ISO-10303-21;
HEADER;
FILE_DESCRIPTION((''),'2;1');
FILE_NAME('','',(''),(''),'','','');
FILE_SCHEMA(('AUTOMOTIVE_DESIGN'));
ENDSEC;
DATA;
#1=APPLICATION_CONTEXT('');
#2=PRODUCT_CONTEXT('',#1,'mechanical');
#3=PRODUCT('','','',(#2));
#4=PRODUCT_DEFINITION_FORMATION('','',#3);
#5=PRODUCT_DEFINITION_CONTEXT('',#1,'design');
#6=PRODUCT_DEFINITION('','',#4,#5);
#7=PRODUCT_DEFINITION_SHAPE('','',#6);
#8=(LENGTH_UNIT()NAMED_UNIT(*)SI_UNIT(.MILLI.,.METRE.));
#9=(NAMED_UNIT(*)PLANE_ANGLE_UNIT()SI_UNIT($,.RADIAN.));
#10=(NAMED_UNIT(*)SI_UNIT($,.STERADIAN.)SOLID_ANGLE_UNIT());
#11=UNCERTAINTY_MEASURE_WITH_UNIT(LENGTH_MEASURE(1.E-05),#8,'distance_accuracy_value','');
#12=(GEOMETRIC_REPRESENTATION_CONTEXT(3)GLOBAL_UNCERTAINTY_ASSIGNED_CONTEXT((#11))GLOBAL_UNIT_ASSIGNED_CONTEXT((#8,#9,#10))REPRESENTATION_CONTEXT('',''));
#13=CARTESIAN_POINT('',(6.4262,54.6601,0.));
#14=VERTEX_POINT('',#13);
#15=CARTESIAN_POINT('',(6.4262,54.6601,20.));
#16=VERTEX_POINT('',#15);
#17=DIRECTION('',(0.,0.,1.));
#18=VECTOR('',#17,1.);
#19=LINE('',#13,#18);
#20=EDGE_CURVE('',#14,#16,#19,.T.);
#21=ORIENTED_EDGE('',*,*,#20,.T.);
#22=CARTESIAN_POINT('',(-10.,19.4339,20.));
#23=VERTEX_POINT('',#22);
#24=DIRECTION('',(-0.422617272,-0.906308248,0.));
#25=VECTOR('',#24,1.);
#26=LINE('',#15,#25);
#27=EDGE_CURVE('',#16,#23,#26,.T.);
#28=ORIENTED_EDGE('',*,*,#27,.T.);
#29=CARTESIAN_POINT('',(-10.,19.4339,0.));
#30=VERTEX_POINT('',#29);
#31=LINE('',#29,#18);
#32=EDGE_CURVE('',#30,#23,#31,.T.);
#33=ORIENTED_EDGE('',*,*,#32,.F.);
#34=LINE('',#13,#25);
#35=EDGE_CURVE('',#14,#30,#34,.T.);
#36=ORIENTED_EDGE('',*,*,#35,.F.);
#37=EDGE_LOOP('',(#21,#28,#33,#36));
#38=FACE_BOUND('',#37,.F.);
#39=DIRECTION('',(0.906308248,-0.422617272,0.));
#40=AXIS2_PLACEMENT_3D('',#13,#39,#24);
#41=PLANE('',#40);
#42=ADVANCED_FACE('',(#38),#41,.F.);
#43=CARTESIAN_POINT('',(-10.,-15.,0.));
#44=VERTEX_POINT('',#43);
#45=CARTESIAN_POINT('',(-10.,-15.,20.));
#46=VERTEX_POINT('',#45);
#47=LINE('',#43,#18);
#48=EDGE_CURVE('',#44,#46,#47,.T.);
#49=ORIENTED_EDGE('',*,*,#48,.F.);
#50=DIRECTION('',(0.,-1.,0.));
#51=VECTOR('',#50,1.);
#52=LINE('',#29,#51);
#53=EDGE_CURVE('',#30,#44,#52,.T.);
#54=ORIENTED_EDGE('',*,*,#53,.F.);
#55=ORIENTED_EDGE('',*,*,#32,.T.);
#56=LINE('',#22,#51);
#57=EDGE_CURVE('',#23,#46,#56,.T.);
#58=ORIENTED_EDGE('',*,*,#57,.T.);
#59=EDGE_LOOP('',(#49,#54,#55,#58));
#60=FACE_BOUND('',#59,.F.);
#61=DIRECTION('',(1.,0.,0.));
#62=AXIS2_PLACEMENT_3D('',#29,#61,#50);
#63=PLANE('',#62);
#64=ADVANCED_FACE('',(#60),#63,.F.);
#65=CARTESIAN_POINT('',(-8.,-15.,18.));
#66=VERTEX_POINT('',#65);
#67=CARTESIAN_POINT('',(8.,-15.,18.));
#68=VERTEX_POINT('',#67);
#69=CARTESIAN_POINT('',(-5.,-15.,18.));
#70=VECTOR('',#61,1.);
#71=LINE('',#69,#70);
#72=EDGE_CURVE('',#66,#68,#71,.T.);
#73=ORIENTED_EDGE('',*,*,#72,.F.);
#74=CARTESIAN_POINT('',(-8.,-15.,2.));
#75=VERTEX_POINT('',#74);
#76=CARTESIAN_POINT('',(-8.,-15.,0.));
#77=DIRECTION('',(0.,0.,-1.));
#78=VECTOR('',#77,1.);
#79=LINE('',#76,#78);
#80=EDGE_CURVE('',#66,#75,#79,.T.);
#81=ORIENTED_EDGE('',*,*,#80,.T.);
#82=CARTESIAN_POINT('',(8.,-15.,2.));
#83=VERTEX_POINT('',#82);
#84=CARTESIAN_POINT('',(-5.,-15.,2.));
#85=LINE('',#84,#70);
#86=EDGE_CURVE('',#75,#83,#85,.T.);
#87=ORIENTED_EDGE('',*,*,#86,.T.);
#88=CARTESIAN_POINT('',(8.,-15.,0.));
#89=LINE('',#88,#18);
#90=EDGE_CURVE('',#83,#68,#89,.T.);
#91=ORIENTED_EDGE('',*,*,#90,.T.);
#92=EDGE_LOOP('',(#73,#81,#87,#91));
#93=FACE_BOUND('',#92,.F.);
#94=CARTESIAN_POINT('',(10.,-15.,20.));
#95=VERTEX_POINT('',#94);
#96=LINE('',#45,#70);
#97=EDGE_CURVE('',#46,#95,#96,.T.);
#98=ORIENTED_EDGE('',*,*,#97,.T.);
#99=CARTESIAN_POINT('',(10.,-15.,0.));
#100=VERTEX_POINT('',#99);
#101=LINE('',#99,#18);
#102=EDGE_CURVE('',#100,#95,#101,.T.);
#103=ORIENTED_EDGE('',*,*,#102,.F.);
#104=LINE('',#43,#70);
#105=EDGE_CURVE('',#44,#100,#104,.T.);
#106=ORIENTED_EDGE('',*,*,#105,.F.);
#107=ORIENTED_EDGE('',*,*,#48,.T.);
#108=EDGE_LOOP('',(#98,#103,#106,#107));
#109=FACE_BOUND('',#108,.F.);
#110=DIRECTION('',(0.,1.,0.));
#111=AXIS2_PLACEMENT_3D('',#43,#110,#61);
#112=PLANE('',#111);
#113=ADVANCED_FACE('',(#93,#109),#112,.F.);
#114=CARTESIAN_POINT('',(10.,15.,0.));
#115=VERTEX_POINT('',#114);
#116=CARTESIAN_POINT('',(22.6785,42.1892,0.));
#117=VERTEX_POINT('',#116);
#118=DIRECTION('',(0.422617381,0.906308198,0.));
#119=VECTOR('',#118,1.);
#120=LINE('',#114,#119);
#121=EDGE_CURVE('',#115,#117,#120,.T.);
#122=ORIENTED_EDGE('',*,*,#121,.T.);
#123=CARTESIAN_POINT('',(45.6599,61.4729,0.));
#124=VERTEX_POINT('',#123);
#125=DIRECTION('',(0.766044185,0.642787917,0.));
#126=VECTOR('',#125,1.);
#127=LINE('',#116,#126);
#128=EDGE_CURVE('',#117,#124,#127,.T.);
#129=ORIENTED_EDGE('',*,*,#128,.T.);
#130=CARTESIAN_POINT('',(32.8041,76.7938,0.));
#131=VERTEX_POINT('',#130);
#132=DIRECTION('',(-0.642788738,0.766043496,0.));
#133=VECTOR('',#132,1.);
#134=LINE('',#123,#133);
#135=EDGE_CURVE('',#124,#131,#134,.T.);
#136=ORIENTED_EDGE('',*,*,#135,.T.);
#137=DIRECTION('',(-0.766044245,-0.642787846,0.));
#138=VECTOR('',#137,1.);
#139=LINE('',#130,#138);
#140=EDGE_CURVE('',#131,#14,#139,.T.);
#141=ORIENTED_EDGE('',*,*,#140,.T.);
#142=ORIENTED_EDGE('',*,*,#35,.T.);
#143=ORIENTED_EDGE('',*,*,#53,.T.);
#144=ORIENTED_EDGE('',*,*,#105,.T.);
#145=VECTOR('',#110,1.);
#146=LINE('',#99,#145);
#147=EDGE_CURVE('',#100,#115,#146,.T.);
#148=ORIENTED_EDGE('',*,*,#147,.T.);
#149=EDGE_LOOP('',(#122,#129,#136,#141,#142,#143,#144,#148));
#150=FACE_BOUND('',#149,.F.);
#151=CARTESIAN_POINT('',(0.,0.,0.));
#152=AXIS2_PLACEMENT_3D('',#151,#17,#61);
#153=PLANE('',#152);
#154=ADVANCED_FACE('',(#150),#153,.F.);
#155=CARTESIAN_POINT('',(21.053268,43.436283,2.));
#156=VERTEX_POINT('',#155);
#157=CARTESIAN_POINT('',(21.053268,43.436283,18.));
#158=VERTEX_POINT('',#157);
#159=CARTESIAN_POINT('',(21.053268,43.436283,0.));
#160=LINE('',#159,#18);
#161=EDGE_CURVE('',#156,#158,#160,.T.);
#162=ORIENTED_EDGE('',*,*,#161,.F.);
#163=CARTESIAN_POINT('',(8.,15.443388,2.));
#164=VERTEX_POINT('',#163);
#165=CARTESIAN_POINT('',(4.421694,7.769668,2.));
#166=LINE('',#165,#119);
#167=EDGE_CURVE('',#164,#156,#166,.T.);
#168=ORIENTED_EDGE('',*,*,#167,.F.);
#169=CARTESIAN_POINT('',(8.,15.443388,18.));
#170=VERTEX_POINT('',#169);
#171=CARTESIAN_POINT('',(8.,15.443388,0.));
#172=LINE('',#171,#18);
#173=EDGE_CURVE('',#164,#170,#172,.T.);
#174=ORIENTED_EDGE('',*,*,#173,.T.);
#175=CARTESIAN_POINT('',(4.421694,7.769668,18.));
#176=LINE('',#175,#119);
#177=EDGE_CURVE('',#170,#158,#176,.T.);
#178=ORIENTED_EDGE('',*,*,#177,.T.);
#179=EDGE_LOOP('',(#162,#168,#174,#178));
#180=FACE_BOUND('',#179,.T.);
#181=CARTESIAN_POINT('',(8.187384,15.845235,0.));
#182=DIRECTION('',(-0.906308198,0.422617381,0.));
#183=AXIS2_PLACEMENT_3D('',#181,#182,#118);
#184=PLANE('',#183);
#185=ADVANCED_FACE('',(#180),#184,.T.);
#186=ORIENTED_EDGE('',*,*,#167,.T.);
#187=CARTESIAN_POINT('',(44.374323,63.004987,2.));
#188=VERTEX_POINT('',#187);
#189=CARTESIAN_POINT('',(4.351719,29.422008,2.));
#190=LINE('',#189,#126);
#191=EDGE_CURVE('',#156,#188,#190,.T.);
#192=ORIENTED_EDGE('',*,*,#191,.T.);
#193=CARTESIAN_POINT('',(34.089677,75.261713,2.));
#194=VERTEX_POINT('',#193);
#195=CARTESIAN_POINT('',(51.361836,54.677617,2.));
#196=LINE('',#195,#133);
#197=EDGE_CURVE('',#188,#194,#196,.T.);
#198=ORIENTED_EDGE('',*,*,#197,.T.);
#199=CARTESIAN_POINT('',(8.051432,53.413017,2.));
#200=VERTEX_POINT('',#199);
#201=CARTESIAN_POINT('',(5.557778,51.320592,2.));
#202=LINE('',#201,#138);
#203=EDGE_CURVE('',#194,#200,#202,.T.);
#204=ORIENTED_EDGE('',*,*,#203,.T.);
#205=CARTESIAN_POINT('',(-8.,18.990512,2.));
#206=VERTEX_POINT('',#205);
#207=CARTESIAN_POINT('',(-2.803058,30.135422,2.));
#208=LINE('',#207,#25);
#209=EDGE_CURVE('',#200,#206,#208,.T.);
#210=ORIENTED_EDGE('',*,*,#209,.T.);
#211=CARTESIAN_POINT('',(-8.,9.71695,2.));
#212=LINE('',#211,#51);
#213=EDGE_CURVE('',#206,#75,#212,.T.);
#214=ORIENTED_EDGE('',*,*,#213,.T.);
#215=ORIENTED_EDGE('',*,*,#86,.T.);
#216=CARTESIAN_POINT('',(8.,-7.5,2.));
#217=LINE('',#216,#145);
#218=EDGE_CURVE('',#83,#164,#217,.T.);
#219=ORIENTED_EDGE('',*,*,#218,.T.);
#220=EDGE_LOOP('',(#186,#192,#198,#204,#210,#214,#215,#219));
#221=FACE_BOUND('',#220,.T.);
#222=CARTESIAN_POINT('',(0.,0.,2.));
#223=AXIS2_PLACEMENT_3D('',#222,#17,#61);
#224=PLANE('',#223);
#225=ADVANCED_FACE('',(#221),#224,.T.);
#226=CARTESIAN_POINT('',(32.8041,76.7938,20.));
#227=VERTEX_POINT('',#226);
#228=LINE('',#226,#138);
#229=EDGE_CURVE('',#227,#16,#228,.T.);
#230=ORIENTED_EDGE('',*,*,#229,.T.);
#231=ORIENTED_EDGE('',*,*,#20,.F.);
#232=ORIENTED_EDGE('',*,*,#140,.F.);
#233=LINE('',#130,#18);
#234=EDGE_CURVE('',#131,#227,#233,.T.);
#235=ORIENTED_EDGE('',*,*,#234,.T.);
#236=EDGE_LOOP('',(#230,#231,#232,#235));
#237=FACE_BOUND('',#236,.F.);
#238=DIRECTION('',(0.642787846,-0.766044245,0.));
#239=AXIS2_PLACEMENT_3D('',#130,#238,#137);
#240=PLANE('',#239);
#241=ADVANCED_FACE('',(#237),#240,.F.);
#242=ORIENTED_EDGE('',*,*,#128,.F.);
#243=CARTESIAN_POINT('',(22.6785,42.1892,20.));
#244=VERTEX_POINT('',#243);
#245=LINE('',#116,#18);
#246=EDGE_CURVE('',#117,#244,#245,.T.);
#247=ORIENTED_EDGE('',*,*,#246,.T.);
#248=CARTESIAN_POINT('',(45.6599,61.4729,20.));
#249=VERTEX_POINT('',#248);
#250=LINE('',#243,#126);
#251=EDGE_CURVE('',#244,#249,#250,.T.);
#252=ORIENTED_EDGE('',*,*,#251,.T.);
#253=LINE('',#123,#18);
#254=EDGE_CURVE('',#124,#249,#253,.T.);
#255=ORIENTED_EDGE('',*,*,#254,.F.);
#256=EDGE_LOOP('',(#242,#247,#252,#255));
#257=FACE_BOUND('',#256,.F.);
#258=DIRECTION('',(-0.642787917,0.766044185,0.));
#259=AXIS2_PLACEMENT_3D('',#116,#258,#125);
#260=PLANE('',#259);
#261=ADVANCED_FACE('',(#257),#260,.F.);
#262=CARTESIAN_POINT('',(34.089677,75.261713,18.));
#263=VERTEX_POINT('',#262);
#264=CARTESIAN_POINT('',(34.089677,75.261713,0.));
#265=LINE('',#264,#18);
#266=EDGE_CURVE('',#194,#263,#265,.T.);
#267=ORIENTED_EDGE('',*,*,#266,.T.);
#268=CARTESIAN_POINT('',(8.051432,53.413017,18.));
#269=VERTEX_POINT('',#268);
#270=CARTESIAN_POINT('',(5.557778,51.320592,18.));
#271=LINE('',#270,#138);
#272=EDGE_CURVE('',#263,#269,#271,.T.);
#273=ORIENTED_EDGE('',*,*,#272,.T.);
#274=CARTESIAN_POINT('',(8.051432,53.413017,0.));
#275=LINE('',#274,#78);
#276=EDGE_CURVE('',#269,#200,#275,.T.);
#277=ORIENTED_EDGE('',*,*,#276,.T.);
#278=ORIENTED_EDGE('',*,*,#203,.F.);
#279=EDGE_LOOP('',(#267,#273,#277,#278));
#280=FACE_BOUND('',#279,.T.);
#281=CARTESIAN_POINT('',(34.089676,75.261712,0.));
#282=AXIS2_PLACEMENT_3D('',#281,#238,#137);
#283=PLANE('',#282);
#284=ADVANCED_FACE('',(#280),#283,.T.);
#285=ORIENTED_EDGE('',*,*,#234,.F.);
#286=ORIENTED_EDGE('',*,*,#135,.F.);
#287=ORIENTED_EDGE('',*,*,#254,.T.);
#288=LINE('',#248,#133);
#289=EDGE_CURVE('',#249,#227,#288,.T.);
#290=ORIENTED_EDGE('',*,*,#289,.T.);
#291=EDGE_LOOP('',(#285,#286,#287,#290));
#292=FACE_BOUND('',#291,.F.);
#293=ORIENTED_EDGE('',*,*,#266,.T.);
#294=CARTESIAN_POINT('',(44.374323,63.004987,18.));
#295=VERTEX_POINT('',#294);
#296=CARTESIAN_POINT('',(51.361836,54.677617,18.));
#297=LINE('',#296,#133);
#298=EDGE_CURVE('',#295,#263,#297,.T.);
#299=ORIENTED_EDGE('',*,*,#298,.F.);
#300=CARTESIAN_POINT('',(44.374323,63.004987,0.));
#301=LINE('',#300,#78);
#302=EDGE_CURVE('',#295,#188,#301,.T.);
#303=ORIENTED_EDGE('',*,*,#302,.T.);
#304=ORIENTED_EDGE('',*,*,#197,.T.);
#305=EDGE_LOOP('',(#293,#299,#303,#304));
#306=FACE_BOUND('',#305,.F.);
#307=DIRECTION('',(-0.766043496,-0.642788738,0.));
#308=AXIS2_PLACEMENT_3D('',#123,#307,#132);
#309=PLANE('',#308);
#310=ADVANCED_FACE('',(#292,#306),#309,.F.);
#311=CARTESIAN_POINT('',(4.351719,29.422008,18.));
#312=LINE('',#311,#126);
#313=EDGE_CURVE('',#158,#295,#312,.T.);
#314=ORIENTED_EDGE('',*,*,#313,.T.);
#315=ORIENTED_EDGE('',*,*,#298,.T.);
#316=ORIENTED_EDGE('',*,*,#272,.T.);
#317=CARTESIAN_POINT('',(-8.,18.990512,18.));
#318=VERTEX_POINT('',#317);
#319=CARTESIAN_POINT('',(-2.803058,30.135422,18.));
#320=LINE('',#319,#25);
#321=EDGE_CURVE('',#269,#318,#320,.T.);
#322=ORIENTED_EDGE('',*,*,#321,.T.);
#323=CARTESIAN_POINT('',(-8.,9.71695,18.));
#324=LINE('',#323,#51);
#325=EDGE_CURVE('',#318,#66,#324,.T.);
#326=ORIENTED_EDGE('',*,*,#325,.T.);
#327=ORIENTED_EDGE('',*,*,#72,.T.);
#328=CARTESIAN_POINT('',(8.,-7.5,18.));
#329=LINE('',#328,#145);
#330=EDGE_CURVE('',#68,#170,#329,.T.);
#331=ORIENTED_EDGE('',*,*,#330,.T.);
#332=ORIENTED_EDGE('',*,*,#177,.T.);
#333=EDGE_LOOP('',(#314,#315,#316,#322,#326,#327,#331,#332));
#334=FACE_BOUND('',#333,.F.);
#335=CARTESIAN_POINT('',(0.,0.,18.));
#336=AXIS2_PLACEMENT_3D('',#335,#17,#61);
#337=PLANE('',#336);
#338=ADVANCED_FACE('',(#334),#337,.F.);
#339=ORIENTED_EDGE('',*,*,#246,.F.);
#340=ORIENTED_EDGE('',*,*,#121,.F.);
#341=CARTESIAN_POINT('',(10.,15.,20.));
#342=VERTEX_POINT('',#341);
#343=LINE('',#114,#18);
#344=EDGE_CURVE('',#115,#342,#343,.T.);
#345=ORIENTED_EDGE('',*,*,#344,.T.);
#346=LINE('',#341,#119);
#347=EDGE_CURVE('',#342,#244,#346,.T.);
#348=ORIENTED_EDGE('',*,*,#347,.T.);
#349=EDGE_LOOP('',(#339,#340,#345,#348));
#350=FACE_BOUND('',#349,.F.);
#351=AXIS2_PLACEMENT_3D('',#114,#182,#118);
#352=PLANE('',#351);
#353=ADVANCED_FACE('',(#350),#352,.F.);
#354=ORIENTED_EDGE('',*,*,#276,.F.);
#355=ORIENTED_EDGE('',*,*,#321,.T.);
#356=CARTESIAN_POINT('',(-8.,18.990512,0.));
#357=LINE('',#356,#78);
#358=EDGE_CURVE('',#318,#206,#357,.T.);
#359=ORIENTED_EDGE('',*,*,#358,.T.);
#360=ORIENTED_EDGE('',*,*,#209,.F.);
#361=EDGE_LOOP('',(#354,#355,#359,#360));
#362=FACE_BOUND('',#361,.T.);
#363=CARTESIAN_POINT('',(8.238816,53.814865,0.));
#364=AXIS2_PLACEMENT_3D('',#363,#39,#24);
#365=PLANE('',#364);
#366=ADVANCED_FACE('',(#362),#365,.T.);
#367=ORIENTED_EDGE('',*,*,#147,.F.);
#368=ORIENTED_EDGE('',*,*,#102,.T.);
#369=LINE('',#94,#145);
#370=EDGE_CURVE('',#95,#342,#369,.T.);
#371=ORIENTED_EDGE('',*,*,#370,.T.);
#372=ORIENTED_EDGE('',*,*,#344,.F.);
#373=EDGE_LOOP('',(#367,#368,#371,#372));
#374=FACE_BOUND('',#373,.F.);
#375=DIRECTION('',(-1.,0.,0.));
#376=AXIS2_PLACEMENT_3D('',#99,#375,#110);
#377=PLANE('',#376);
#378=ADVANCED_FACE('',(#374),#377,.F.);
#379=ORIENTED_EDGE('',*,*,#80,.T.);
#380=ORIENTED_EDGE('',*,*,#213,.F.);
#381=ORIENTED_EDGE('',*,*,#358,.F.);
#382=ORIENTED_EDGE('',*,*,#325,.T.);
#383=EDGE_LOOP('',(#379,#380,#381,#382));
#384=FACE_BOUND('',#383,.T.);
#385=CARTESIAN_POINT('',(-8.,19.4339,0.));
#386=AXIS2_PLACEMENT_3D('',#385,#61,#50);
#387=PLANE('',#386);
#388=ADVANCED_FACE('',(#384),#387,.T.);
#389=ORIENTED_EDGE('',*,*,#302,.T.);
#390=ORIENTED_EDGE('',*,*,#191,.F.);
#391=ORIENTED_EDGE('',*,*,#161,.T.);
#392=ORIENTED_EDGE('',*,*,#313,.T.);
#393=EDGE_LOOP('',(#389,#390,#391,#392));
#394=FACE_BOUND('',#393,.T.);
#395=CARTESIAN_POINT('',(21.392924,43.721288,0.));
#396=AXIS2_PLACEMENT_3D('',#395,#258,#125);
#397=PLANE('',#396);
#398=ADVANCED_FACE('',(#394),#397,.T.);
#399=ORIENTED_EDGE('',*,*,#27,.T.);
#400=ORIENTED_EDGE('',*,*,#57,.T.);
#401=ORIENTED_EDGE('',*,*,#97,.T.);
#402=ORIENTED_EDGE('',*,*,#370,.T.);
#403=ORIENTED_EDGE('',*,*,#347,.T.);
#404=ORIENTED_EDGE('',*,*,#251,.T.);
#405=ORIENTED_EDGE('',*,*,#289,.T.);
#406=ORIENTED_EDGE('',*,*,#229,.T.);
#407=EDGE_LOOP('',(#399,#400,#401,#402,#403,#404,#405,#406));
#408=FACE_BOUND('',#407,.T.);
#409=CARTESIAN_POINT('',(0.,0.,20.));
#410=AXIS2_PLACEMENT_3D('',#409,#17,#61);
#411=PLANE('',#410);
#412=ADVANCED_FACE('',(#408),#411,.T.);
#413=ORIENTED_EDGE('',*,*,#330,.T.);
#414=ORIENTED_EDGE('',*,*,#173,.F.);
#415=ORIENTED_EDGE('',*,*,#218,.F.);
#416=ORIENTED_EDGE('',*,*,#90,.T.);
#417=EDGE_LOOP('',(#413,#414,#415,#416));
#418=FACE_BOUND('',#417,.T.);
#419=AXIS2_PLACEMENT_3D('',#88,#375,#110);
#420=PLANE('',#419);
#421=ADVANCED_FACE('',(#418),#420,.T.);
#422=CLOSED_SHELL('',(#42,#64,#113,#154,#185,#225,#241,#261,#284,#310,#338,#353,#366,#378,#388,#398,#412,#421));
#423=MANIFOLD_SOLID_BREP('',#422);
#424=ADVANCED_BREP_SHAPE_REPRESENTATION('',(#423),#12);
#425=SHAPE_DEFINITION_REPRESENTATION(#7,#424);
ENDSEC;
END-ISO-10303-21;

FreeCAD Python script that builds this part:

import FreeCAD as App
import Part
import Sketcher

V = App.Vector
Q = App.Units.Quantity


def faces_at(feature, points):
    """Names of the faces that lie closest to the given points."""
    faces = feature.Shape.Faces
    near = lambda p: min(range(len(faces)), key=lambda i: faces[i].distToShape(Part.Vertex(*p))[0])
    return sorted({f"Face{near(p) + 1}" for p in points})


def add_polygon(sketch, points):
    """Adds a closed chain of lines whose ends are joined by coincident constraints."""
    first, n = sketch.GeometryCount, len(points)
    for a, b in zip(points, points[1:] + points[:1]):
        sketch.addGeometry(Part.LineSegment(App.Vector(*a, 0), App.Vector(*b, 0)), False)
    for i in range(n):
        sketch.addConstraint(Sketcher.Constraint("Coincident", first + i, 2, first + (i + 1) % n, 1))

doc = App.newDocument("Part")
params = doc.addObject("Spreadsheet::Sheet", "Params")
for row, (alias, value) in enumerate([
    ("sketch1_width", "20 mm"),
    ("sketch1_height", "30 mm"),
    ("sketch1_length", "30 mm"),
    ("sketch1_length2", "20 mm"),
    ("pad1_length", "20 mm"),
    ("thickness_wall", "2 mm"),
], start=1):
    params.set(f"A{row}", alias)
    params.set(f"B{row}", "=" + value)
    params.setAlias(f"B{row}", alias)

body = doc.addObject("PartDesign::Body", "Body")

# Sketch on XY plane
sketch1 = body.newObject("Sketcher::SketchObject", "Sketch")
sketch1.AttachmentSupport = (doc.getObject("XY_Plane"), [""])
sketch1.MapMode = "FlatFace"
add_polygon(sketch1, [(-10, 19.4339), (-10, -15), (10, -15), (10, 15), (22.6785, 42.1892), (45.6599, 61.4729), (32.8041, 76.7938), (6.4262, 54.6601)])  # lines 0-7
sketch1.addConstraint([
    Sketcher.Constraint("Vertical", 0),
    Sketcher.Constraint("Horizontal", 1),
    Sketcher.Constraint("Vertical", 2),
    Sketcher.Constraint("Symmetric", 0, 2, 2, 2, -1, 1),
    Sketcher.Constraint("Perpendicular", 4, 5),
    Sketcher.Constraint("Perpendicular", 5, 6),
    Sketcher.Constraint("Parallel", 3, 7),
    Sketcher.Constraint("Equal", 3, 4),
    Sketcher.Constraint("DistanceX", 1, 1, 1, 2, 20.0),
    Sketcher.Constraint("DistanceY", 2, 1, 2, 2, 30.0),
    Sketcher.Constraint("Distance", 3, 30.0),
    Sketcher.Constraint("Distance", 5, 20.0),
    Sketcher.Constraint("DistanceY", 0, 2, 0, 1, 34.434),
    Sketcher.Constraint("Angle", 3, Q("65 deg")),
    Sketcher.Constraint("Angle", 4, Q("40 deg")),
])
sketch1.setExpression("Constraints[16]", "Params.sketch1_width")
sketch1.setExpression("Constraints[17]", "Params.sketch1_height")
sketch1.setExpression("Constraints[18]", "Params.sketch1_length")
sketch1.setExpression("Constraints[19]", "Params.sketch1_length2")
pad1 = body.newObject("PartDesign::Pad", "Pad")
pad1.Profile = sketch1
pad1.setExpression("Length", "Params.pad1_length")
doc.recompute()

thickness = body.newObject("PartDesign::Thickness", "Thickness")
thickness.Base = (pad1, faces_at(pad1, [(-3.333, -15, 6.667), (41.375, 66.58, 6.667)]))
thickness.setExpression("Value", "Params.thickness_wall")
thickness.Reversed = True
thickness.Join = "Intersection"

doc.recompute()
